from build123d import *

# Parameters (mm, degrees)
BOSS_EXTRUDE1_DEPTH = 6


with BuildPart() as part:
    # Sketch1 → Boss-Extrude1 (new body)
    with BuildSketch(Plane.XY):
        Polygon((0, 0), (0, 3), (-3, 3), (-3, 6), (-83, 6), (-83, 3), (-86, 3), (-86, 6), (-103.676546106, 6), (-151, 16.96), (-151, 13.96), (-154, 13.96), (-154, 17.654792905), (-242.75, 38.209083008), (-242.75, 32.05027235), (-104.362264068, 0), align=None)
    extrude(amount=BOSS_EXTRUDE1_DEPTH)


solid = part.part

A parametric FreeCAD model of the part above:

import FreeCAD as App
import Part
import Sketcher

V = App.Vector
Q = App.Units.Quantity

doc = App.newDocument("Part")
body = doc.addObject("PartDesign::Body", "Body")

# Sketch on XY plane
sketch1 = doc.addObject("Sketcher::SketchObject", "Sketch")
body.addObject(sketch1)
sketch1.AttachmentSupport = (doc.XY_Plane, [""])
sketch1.MapMode = "FlatFace"
sketch1.addGeometry([
    Part.LineSegment(V(0, 0, 0), V(0, 3, 0)),  # 0
    Part.LineSegment(V(0, 3, 0), V(-3, 3, 0)),  # 1
    Part.LineSegment(V(-3, 3, 0), V(-3, 6, 0)),  # 2
    Part.LineSegment(V(-3, 6, 0), V(-83, 6, 0)),  # 3
    Part.LineSegment(V(-83, 6, 0), V(-83, 3, 0)),  # 4
    Part.LineSegment(V(-83, 3, 0), V(-86, 3, 0)),  # 5
    Part.LineSegment(V(-86, 3, 0), V(-86, 6, 0)),  # 6
    Part.LineSegment(V(-86, 6, 0), V(-103.676546, 6, 0)),  # 7
    Part.LineSegment(V(-103.676546, 6, 0), V(-151, 16.96, 0)),  # 8
    Part.LineSegment(V(-151, 16.96, 0), V(-151, 13.96, 0)),  # 9
    Part.LineSegment(V(-151, 13.96, 0), V(-154, 13.96, 0)),  # 10
    Part.LineSegment(V(-154, 13.96, 0), V(-154, 17.654793, 0)),  # 11
    Part.LineSegment(V(-154, 17.654793, 0), V(-242.75, 38.209083, 0)),  # 12
    Part.LineSegment(V(-242.75, 38.209083, 0), V(-242.75, 32.050272, 0)),  # 13
    Part.LineSegment(V(-242.75, 32.050272, 0), V(-104.362264, 0, 0)),  # 14
    Part.LineSegment(V(-104.362264, 0, 0), V(0, 0, 0)),  # 15
], False)
sketch1.addConstraint([
    Sketcher.Constraint("Coincident", 0, 2, 1, 1),
    Sketcher.Constraint("Coincident", 1, 2, 2, 1),
    Sketcher.Constraint("Coincident", 2, 2, 3, 1),
    Sketcher.Constraint("Coincident", 3, 2, 4, 1),
    Sketcher.Constraint("Coincident", 4, 2, 5, 1),
    Sketcher.Constraint("Coincident", 5, 2, 6, 1),
    Sketcher.Constraint("Coincident", 6, 2, 7, 1),
    Sketcher.Constraint("Coincident", 7, 2, 8, 1),
    Sketcher.Constraint("Coincident", 8, 2, 9, 1),
    Sketcher.Constraint("Coincident", 9, 2, 10, 1),
    Sketcher.Constraint("Coincident", 10, 2, 11, 1),
    Sketcher.Constraint("Coincident", 11, 2, 12, 1),
    Sketcher.Constraint("Coincident", 12, 2, 13, 1),
    Sketcher.Constraint("Coincident", 13, 2, 14, 1),
    Sketcher.Constraint("Coincident", 14, 2, 15, 1),
    Sketcher.Constraint("Coincident", 15, 2, 0, 1),
    Sketcher.Constraint("Vertical", 0),
    Sketcher.Constraint("Horizontal", 1),
    Sketcher.Constraint("Vertical", 2),
    Sketcher.Constraint("Horizontal", 3),
    Sketcher.Constraint("Vertical", 4),
    Sketcher.Constraint("Horizontal", 5),
    Sketcher.Constraint("Vertical", 6),
    Sketcher.Constraint("Horizontal", 7),
    Sketcher.Constraint("Vertical", 9),
    Sketcher.Constraint("Horizontal", 10),
    Sketcher.Constraint("Vertical", 11),
    Sketcher.Constraint("Vertical", 13),
    Sketcher.Constraint("Horizontal", 15),
    Sketcher.Constraint("Coincident", 15, 2, -1, 1),
    Sketcher.Constraint("Parallel", 8, 12),
    Sketcher.Constraint("Parallel", 12, 14),
    Sketcher.Constraint("Horizontal", 1, 2, 4, 2),
    Sketcher.Constraint("Horizontal", 3, 2, 6, 2),
    Sketcher.Constraint("Equal", 1, 5),
    Sketcher.Constraint("Equal", 5, 10),
    Sketcher.Constraint("Equal", 10, 0),
    Sketcher.Constraint("Equal", 0, 2),
    Sketcher.Constraint("Equal", 6, 9),
    Sketcher.Constraint("DistanceX", 1, 2, 1, 1, Q("3 mm")),
    Sketcher.Constraint("DistanceX", 3, 2, 3, 1, Q("80 mm")),
    Sketcher.Constraint("DistanceX", 8, 2, -1, 1, Q("151 mm")),
    Sketcher.Constraint("DistanceY", -1, 1, 8, 2, Q("16.96 mm")),
    Sketcher.Constraint("DistanceX", 12, 2, -1, 1, Q("242.75 mm")),
    Sketcher.Constraint("DistanceY", 13, 2, 13, 1, Q("6.158811 mm")),
    Sketcher.Constraint("DistanceX", 7, 2, 7, 1, Q("17.676546 mm")),
    Sketcher.Constraint("DistanceX", 15, 1, 15, 2, Q("104.362264 mm")),
])
pad1 = doc.addObject("PartDesign::Pad", "Pad")
body.addObject(pad1)
pad1.Profile = sketch1
pad1.Length = 6

doc.recompute()
